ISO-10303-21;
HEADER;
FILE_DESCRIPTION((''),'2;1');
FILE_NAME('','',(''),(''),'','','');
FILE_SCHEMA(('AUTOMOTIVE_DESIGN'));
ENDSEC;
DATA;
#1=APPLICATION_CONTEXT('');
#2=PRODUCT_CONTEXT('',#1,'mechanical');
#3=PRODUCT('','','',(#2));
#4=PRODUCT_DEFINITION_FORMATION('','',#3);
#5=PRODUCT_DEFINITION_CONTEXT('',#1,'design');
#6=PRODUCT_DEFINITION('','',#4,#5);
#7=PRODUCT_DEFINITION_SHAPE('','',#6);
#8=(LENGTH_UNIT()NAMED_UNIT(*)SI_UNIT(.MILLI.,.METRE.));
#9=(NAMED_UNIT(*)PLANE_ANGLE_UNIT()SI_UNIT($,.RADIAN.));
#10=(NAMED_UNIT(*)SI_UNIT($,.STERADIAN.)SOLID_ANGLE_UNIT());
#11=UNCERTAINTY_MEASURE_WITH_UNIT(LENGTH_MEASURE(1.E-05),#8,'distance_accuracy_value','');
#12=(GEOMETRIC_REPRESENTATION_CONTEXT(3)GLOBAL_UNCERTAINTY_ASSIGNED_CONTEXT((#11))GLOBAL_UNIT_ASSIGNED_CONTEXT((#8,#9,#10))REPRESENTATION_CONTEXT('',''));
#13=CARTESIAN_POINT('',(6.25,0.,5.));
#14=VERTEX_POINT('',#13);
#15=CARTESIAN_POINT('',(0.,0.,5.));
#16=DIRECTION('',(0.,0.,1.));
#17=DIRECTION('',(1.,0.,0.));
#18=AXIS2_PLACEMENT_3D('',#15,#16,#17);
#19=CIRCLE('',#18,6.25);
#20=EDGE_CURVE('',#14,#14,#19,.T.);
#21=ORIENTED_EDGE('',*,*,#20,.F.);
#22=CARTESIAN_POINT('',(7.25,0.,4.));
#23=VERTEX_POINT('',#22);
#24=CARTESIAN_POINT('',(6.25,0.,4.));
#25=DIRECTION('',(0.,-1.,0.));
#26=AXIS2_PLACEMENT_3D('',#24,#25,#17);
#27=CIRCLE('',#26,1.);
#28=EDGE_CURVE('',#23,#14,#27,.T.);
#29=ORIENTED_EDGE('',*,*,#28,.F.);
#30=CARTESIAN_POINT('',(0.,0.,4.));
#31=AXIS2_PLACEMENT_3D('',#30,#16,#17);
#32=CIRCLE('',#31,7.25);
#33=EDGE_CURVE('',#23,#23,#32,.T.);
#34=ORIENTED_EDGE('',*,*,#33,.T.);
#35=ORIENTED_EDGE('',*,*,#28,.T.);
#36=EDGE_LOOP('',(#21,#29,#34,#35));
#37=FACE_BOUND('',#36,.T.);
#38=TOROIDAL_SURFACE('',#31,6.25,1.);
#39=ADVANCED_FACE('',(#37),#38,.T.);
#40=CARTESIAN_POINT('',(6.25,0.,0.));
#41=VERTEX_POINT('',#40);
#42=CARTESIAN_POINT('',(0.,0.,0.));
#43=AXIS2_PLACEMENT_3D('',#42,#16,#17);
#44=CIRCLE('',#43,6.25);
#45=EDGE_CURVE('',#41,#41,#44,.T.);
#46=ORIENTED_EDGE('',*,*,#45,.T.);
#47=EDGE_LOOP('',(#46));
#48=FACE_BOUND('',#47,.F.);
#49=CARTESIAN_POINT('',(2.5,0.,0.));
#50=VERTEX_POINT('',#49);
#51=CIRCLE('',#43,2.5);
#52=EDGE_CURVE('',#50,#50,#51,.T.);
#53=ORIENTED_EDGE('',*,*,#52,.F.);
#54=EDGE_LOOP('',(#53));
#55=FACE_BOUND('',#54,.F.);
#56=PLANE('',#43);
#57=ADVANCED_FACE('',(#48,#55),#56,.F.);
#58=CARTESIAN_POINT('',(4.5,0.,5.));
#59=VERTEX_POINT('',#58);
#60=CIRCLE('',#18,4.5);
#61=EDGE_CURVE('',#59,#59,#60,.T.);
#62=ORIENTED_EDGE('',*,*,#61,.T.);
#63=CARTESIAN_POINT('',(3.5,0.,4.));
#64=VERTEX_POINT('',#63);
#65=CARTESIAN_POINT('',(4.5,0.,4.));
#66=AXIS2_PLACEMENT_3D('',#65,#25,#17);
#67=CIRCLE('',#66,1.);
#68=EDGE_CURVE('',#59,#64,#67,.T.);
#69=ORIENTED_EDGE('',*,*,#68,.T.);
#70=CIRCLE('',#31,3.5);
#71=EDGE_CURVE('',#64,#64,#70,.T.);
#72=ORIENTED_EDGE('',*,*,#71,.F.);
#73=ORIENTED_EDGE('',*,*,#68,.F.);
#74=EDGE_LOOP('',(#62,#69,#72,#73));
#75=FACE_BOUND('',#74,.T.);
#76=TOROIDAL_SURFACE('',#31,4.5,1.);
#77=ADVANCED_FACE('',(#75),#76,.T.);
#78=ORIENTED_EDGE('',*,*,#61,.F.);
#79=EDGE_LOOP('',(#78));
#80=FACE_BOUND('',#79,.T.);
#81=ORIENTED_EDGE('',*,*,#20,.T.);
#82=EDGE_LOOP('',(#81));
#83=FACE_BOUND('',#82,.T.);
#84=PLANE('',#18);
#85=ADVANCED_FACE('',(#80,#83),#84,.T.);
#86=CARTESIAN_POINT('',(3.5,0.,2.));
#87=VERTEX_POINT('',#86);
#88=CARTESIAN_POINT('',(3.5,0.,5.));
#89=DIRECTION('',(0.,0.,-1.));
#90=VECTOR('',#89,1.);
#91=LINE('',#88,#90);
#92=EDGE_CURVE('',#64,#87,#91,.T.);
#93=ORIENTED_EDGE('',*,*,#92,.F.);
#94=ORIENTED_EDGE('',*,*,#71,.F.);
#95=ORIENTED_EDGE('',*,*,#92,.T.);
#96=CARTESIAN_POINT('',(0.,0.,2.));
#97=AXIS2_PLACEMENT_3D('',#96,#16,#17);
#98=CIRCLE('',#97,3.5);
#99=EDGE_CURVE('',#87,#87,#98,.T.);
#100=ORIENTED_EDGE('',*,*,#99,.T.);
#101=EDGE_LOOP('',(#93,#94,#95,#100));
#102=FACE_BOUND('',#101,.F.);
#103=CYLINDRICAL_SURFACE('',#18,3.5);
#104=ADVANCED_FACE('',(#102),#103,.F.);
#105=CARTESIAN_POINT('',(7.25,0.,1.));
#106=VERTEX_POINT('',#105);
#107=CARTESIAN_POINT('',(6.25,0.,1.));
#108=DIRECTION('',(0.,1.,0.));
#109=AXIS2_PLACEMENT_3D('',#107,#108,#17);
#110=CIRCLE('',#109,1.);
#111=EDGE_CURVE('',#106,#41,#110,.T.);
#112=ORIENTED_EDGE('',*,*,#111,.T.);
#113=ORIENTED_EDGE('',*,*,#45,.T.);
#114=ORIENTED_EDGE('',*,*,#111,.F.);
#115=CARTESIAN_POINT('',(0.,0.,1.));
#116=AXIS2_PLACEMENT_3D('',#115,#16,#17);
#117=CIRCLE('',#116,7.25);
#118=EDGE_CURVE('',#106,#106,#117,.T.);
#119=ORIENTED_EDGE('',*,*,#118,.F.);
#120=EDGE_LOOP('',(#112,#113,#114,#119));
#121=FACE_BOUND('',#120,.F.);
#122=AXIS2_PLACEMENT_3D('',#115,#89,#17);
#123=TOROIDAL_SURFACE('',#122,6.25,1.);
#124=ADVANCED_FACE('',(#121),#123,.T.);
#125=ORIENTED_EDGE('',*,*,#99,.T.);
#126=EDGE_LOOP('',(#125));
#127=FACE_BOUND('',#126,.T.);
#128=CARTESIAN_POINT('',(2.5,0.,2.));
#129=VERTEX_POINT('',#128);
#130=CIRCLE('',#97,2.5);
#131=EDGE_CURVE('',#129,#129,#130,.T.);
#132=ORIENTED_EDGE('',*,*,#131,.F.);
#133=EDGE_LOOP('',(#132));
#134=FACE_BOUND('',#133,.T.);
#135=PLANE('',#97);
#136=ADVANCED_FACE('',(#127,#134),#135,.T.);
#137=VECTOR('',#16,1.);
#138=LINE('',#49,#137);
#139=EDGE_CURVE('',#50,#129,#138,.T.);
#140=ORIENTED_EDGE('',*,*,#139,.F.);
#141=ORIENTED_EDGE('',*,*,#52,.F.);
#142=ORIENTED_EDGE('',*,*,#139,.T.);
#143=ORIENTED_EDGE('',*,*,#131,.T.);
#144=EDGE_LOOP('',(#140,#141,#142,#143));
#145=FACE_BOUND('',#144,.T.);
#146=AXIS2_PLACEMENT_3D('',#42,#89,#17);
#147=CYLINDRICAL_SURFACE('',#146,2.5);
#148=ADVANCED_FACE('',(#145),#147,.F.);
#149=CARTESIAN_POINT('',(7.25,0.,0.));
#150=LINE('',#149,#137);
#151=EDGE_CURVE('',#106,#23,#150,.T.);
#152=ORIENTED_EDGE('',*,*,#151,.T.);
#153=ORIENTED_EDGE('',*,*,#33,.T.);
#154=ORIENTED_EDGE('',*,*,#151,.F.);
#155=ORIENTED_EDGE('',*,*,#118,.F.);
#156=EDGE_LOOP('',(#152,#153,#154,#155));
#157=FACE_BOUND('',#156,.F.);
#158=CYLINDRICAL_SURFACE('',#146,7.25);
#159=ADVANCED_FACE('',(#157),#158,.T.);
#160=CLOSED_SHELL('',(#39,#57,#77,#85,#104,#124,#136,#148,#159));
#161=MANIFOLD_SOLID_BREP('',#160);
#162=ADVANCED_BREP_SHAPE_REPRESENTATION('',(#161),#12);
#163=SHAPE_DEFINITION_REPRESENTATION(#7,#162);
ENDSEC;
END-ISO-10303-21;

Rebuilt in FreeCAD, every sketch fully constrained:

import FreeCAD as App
import Part
import Sketcher
Q = App.Units.Quantity


def edges_at(feature, points):
    """Names of the edges that pass closest to the given points."""
    edges = feature.Shape.Edges
    near = lambda p: min(range(len(edges)), key=lambda i: edges[i].distToShape(Part.Vertex(*p))[0])
    return sorted({f"Edge{near(p) + 1}" for p in points})

doc = App.newDocument("Part")
params = doc.addObject("Spreadsheet::Sheet", "Params")
for row, (alias, value) in enumerate([
    ("sketch1_diameter", "5 mm"),
    ("sketch1_diameter2", "14.5 mm"),
    ("pad1_length", "5 mm"),
    ("sketch2_diameter", "7 mm"),
    ("sketch2_diameter2", "5 mm"),
    ("pocket1_length", "3 mm"),
    ("fillet_radius", "1 mm"),
], start=1):
    params.set(f"A{row}", alias)
    params.set(f"B{row}", "=" + value)
    params.setAlias(f"B{row}", alias)

body = doc.addObject("PartDesign::Body", "Body")

# Sketch on XY plane
sketch1 = doc.addObject("Sketcher::SketchObject", "Sketch")
body.addObject(sketch1)
sketch1.AttachmentSupport = (doc.XY_Plane, [""])
sketch1.MapMode = "FlatFace"
sketch1.addGeometry([
    Part.Circle(App.Vector(0, 0, 0), App.Vector(0, 0, 1), 7.2),
    Part.Circle(App.Vector(0, 0, 0), App.Vector(0, 0, 1), 2.5),
], False)
sketch1.addConstraint([
    Sketcher.Constraint("Coincident", 0, 3, -1, 1),
    Sketcher.Constraint("Coincident", 1, 3, -1, 1),
    Sketcher.Constraint("Diameter", 1, Q("5 mm")),
    Sketcher.Constraint("Diameter", 0, Q("14.5 mm")),
])
sketch1.setExpression("Constraints[2]", "Params.sketch1_diameter")
sketch1.setExpression("Constraints[3]", "Params.sketch1_diameter2")
pad1 = doc.addObject("PartDesign::Pad", "Pad")
body.addObject(pad1)
pad1.Profile = sketch1
pad1.setExpression("Length", "Params.pad1_length")

# Sketch on XY plane
sketch2 = doc.addObject("Sketcher::SketchObject", "Sketch001")
body.addObject(sketch2)
sketch2.AttachmentSupport = (doc.XY_Plane, [""])
sketch2.MapMode = "FlatFace"
sketch2.AttachmentOffset = App.Placement(App.Vector(0, 0, 5), App.Rotation())
sketch2.addGeometry([
    Part.Circle(App.Vector(0, 0, 0), App.Vector(0, 0, 1), 3.5),
    Part.Circle(App.Vector(0, 0, 0), App.Vector(0, 0, 1), 2.5),
], False)
sketch2.addConstraint([
    Sketcher.Constraint("Coincident", 0, 3, -1, 1),
    Sketcher.Constraint("Coincident", 1, 3, -1, 1),
    Sketcher.Constraint("Diameter", 0, Q("7 mm")),
    Sketcher.Constraint("Diameter", 1, Q("5 mm")),
])
sketch2.setExpression("Constraints[2]", "Params.sketch2_diameter")
sketch2.setExpression("Constraints[3]", "Params.sketch2_diameter2")
pocket1 = doc.addObject("PartDesign::Pocket", "Pocket")
body.addObject(pocket1)
pocket1.Profile = sketch2
pocket1.setExpression("Length", "Params.pocket1_length")
doc.recompute()

fillet = doc.addObject("PartDesign::Fillet", "Fillet")
body.addObject(fillet)
fillet.Base = (pocket1, edges_at(pocket1, [(-7.25, 0, 5), (-3.5, 0, 5), (-7.25, 0, 0)]))
fillet.setExpression("Radius", "Params.fillet_radius")

doc.recompute()
